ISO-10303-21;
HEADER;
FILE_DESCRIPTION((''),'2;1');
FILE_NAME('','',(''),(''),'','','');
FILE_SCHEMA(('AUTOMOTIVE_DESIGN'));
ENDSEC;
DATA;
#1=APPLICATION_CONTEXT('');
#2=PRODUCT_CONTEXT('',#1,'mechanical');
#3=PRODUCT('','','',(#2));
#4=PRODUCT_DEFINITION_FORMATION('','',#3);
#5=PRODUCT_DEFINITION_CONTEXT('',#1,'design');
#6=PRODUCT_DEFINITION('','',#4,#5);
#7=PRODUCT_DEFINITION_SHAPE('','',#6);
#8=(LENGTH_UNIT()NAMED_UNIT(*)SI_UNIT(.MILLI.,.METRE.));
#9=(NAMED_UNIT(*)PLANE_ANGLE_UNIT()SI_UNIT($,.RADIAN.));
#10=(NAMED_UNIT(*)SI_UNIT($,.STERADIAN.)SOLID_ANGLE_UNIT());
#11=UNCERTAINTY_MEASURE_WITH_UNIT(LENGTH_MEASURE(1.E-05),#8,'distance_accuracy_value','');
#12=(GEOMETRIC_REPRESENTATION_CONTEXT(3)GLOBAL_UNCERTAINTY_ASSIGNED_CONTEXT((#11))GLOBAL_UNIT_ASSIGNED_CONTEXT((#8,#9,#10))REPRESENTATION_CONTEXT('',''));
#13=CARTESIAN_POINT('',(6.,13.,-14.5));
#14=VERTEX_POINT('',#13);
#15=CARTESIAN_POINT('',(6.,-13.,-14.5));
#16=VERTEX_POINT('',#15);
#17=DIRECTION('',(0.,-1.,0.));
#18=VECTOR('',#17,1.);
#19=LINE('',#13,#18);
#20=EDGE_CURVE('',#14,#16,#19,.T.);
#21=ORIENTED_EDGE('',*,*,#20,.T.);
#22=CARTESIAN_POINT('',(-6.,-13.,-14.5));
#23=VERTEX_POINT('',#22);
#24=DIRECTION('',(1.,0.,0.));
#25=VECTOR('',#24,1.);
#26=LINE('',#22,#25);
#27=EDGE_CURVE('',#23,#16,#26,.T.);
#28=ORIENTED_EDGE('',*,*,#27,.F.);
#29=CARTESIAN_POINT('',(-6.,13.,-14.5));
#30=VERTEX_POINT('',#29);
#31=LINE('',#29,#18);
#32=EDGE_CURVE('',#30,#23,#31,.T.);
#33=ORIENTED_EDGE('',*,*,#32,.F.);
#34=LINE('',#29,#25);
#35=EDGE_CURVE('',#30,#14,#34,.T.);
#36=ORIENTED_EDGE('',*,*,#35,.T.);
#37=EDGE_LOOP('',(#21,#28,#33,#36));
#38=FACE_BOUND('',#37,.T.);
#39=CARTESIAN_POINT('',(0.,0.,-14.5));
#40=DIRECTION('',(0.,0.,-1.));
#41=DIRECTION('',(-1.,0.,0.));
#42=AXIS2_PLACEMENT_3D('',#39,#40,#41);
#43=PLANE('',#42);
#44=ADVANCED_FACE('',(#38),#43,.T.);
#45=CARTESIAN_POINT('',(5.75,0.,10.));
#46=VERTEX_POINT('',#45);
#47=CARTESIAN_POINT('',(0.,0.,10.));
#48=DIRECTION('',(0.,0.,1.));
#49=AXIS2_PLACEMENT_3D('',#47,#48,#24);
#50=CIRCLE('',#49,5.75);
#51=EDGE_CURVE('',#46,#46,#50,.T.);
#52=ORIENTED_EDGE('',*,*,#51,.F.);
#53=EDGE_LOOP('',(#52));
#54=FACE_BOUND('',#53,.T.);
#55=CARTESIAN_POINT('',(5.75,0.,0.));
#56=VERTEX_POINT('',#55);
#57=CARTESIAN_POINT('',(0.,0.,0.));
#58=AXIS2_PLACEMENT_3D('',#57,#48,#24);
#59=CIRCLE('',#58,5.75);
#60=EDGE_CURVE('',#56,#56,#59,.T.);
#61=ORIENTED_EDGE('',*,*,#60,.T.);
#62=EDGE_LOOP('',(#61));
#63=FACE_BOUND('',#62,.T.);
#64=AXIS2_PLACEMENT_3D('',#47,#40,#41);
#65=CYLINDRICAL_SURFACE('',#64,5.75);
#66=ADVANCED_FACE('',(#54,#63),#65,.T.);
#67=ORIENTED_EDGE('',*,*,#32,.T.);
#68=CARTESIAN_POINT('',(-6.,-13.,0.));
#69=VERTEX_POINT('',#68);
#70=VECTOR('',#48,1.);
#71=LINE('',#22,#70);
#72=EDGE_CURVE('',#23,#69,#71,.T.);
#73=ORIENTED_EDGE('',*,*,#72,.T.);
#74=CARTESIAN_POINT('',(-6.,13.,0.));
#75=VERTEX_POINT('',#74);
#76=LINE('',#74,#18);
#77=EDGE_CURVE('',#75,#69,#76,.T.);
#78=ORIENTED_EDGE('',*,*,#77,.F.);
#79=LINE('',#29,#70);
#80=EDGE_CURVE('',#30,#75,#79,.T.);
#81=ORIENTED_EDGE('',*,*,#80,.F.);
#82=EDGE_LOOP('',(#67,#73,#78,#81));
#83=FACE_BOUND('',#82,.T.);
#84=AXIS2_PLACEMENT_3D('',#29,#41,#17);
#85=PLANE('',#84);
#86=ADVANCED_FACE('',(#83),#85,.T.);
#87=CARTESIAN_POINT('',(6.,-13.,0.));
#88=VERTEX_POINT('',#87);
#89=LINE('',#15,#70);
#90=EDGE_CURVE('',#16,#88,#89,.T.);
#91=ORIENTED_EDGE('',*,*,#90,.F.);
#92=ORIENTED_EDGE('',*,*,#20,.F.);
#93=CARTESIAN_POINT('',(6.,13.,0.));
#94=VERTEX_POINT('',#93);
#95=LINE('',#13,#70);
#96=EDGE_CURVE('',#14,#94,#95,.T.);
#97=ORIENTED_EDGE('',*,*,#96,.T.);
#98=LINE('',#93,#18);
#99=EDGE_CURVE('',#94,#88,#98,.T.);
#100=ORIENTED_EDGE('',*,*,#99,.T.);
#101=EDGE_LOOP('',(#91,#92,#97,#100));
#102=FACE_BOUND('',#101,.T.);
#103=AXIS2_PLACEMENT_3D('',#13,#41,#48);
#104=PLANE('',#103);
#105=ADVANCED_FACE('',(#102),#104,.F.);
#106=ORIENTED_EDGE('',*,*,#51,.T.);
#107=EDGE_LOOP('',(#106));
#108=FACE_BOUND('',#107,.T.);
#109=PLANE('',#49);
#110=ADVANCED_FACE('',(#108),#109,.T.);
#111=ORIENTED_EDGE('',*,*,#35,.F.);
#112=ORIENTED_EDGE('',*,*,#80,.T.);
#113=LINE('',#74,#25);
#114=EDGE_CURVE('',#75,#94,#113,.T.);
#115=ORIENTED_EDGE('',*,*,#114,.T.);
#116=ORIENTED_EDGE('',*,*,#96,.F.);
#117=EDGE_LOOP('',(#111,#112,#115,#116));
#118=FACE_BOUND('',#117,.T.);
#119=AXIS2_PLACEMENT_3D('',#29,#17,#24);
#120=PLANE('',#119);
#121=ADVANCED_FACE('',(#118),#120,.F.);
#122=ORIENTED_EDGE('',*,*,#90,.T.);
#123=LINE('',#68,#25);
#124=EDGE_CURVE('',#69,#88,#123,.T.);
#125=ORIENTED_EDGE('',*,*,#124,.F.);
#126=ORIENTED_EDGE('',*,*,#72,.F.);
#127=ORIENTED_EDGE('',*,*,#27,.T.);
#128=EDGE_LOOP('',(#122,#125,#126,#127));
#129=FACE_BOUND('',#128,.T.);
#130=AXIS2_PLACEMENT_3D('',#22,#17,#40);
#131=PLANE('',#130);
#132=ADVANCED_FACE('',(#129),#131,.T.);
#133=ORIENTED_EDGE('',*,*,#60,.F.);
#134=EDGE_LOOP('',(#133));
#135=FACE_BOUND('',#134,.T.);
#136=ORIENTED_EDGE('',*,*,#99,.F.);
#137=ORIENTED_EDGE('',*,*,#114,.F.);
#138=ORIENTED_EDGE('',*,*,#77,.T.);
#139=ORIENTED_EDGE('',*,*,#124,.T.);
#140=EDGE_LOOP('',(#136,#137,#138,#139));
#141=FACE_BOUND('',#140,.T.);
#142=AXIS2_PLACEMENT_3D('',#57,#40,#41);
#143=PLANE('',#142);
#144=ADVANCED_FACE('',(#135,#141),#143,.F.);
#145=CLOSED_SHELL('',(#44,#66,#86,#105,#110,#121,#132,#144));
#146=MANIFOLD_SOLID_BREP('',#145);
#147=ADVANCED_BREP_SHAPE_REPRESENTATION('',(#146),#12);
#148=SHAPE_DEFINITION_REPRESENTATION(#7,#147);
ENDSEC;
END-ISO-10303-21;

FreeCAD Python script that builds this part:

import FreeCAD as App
import Part
import Sketcher
from FreeCAD import Vector


def add_polygon(sketch, points):
    """Adds a closed chain of lines whose ends are joined by coincident constraints."""
    first, n = sketch.GeometryCount, len(points)
    for a, b in zip(points, points[1:] + points[:1]):
        sketch.addGeometry(Part.LineSegment(App.Vector(*a, 0), App.Vector(*b, 0)), False)
    for i in range(n):
        sketch.addConstraint(Sketcher.Constraint("Coincident", first + i, 2, first + (i + 1) % n, 1))

doc = App.newDocument("Part")
body = doc.addObject("PartDesign::Body", "Body")

# Sketch on XY plane
sketch1 = body.newObject("Sketcher::SketchObject", "Sketch")
sketch1.AttachmentSupport = (doc.getObject("XY_Plane"), [""])
sketch1.MapMode = "FlatFace"
add_polygon(sketch1, [(-6, 13), (-6, -13), (6, -13), (6, 13)])  # lines 0-3
sketch1.addConstraint([
    Sketcher.Constraint("Vertical", 0),
    Sketcher.Constraint("Horizontal", 1),
    Sketcher.Constraint("Vertical", 2),
    Sketcher.Constraint("Horizontal", 3),
    Sketcher.Constraint("Symmetric", 0, 2, 2, 2, -1, 1),
    Sketcher.Constraint("DistanceX", 1, 1, 1, 2, 12.0),
    Sketcher.Constraint("DistanceY", 0, 2, 0, 1, 26.0),
])
pad1 = body.newObject("PartDesign::Pad", "Pad")
pad1.Profile = sketch1
pad1.Length = 14.5
pad1.Reversed = True

# Sketch on XY plane
sketch2 = body.newObject("Sketcher::SketchObject", "Sketch001")
sketch2.AttachmentSupport = (doc.getObject("XY_Plane"), [""])
sketch2.MapMode = "FlatFace"
sketch2.addGeometry(Part.Circle(Vector(0, 0, 0), Vector(0, 0, 1), 5.75), False)
sketch2.addConstraint([
    Sketcher.Constraint("Coincident", 0, 3, -1, 1),
    Sketcher.Constraint("Diameter", 0, 11.5),
])
pad2 = body.newObject("PartDesign::Pad", "Pad001")
pad2.Profile = sketch2
pad2.Length = 10

doc.recompute()
